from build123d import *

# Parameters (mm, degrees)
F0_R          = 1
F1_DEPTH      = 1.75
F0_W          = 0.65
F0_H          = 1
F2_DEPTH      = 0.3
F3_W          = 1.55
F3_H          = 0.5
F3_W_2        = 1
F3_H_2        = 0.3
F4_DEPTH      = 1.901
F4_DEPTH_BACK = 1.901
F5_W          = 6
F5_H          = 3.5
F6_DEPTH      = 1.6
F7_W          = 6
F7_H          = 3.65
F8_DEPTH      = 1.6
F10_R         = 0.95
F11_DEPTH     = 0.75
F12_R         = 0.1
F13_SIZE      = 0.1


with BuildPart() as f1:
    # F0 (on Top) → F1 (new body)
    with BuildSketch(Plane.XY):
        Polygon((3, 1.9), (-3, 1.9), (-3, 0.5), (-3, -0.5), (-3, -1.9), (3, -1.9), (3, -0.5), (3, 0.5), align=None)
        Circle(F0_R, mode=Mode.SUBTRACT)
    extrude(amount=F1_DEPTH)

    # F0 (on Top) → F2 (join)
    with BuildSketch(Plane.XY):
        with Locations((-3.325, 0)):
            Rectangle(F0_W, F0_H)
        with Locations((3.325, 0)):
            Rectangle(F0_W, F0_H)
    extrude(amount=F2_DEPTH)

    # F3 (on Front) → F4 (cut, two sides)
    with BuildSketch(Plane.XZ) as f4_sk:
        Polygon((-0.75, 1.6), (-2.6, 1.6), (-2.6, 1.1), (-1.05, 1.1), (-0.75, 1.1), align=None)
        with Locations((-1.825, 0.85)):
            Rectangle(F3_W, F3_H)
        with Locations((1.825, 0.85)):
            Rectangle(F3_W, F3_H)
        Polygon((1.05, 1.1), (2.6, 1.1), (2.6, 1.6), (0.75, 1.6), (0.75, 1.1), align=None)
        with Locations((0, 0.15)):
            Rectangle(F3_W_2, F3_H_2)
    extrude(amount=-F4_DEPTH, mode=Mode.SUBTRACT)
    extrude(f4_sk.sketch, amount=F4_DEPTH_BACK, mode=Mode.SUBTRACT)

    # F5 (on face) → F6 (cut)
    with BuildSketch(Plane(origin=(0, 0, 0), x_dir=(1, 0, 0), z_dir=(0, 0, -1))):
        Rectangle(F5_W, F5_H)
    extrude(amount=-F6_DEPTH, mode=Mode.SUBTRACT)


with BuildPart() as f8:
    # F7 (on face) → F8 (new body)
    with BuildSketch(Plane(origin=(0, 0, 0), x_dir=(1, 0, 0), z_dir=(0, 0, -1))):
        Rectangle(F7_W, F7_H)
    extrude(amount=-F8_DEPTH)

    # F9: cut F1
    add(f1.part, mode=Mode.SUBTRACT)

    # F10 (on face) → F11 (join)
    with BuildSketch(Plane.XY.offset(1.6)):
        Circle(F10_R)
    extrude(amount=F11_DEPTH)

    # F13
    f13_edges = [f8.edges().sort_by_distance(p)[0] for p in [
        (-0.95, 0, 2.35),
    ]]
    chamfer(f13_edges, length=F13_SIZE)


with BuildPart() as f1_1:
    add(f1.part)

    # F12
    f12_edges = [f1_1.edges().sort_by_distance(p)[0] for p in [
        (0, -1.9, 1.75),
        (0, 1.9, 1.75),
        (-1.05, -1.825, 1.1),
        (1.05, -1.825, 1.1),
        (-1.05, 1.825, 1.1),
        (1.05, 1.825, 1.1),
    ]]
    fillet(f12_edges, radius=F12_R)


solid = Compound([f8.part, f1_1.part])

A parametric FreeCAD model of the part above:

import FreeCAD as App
import Part
import Sketcher

V = App.Vector
Q = App.Units.Quantity


def edges_at(feature, points):
    """Names of the edges that pass closest to the given points."""
    edges = feature.Shape.Edges
    near = lambda p: min(range(len(edges)), key=lambda i: edges[i].distToShape(Part.Vertex(*p))[0])
    return sorted({f"Edge{near(p) + 1}" for p in points})

doc = App.newDocument("Part")
body = doc.addObject("PartDesign::Body", "Body")
body.AllowCompound = True

# Sketch on XY plane
sketch1 = body.newObject("Sketcher::SketchObject", "Sketch")
sketch1.AttachmentSupport = (doc.getObject("XY_Plane"), [""])
sketch1.MapMode = "FlatFace"
sketch1.addGeometry([
    Part.LineSegment(V(3, 1.9, 0), V(-3, 1.9, 0)),  # 0
    Part.LineSegment(V(-3, 1.9, 0), V(-3, -1.9, 0)),  # 1
    Part.LineSegment(V(-3, -1.9, 0), V(3, -1.9, 0)),  # 2
    Part.LineSegment(V(3, -1.9, 0), V(3, 1.9, 0)),  # 3
    Part.Circle(V(0, 0, 0), V(0, 0, 1), 1),  # 4
], False)
sketch1.addConstraint([
    Sketcher.Constraint("Coincident", 0, 2, 1, 1),
    Sketcher.Constraint("Coincident", 1, 2, 2, 1),
    Sketcher.Constraint("Coincident", 2, 2, 3, 1),
    Sketcher.Constraint("Coincident", 3, 2, 0, 1),
    Sketcher.Constraint("Horizontal", 0),
    Sketcher.Constraint("Vertical", 1),
    Sketcher.Constraint("Horizontal", 2),
    Sketcher.Constraint("Vertical", 3),
    Sketcher.Constraint("Coincident", 4, 3, -1, 1),
    Sketcher.Constraint("Symmetric", 0, 2, 2, 2, -1, 1),
    Sketcher.Constraint("Diameter", 4, Q("2 mm")),
    Sketcher.Constraint("DistanceX", 0, 2, 0, 1, Q("6 mm")),
    Sketcher.Constraint("DistanceY", 1, 2, 1, 1, Q("3.8 mm")),
])
pad1 = body.newObject("PartDesign::Pad", "Pad")
pad1.Profile = sketch1
pad1.Length = 1.75

# Sketch on XY plane
sketch2 = body.newObject("Sketcher::SketchObject", "Sketch001")
sketch2.AttachmentSupport = (doc.getObject("XY_Plane"), [""])
sketch2.MapMode = "FlatFace"
sketch2.addGeometry([
    Part.LineSegment(V(-3.65, 0.5, 0), V(-3.65, -0.5, 0)),  # 0
    Part.LineSegment(V(-3.65, -0.5, 0), V(-3, -0.5, 0)),  # 1
    Part.LineSegment(V(-3, -0.5, 0), V(-3, 0.5, 0)),  # 2
    Part.LineSegment(V(-3, 0.5, 0), V(-3.65, 0.5, 0)),  # 3
    Part.LineSegment(V(3, 0.5, 0), V(3, -0.5, 0)),  # 4
    Part.LineSegment(V(3, -0.5, 0), V(3.65, -0.5, 0)),  # 5
    Part.LineSegment(V(3.65, -0.5, 0), V(3.65, 0.5, 0)),  # 6
    Part.LineSegment(V(3.65, 0.5, 0), V(3, 0.5, 0)),  # 7
], False)
sketch2.addConstraint([
    Sketcher.Constraint("Coincident", 0, 2, 1, 1),
    Sketcher.Constraint("Coincident", 1, 2, 2, 1),
    Sketcher.Constraint("Coincident", 2, 2, 3, 1),
    Sketcher.Constraint("Coincident", 3, 2, 0, 1),
    Sketcher.Constraint("Coincident", 4, 2, 5, 1),
    Sketcher.Constraint("Coincident", 5, 2, 6, 1),
    Sketcher.Constraint("Coincident", 6, 2, 7, 1),
    Sketcher.Constraint("Coincident", 7, 2, 4, 1),
    Sketcher.Constraint("Vertical", 0),
    Sketcher.Constraint("Horizontal", 1),
    Sketcher.Constraint("Vertical", 2),
    Sketcher.Constraint("Horizontal", 3),
    Sketcher.Constraint("Vertical", 4),
    Sketcher.Constraint("Horizontal", 5),
    Sketcher.Constraint("Vertical", 6),
    Sketcher.Constraint("Horizontal", 7),
    Sketcher.Constraint("Symmetric", 2, 2, 4, 2, -1, 1),
    Sketcher.Constraint("Symmetric", 0, 2, 6, 2, -1, 1),
    Sketcher.Constraint("Horizontal", 1, 2, 4, 2),
    Sketcher.Constraint("DistanceY", 0, 2, 0, 1, Q("1 mm")),
    Sketcher.Constraint("DistanceX", 1, 2, -1, 1, Q("3 mm")),
    Sketcher.Constraint("DistanceX", 1, 1, 1, 2, Q("0.65 mm")),
])
pad2 = body.newObject("PartDesign::Pad", "Pad001")
pad2.Profile = sketch2
pad2.Length = 0.3

# Sketch on XZ plane
sketch3 = body.newObject("Sketcher::SketchObject", "Sketch002")
sketch3.AttachmentSupport = (doc.getObject("XZ_Plane"), [""])
sketch3.MapMode = "FlatFace"
sketch3.addGeometry([
    Part.LineSegment(V(-0.75, 1.6, 0), V(-2.6, 1.6, 0)),  # 0
    Part.LineSegment(V(-2.6, 1.6, 0), V(-2.6, 0.6, 0)),  # 1
    Part.LineSegment(V(-2.6, 0.6, 0), V(-1.05, 0.6, 0)),  # 2
    Part.LineSegment(V(-1.05, 0.6, 0), V(-1.05, 1.1, 0)),  # 3
    Part.LineSegment(V(-1.05, 1.1, 0), V(-0.75, 1.1, 0)),  # 4
    Part.LineSegment(V(-0.75, 1.1, 0), V(-0.75, 1.6, 0)),  # 5
    Part.LineSegment(V(1.05, 1.1, 0), V(1.05, 0.6, 0)),  # 6
    Part.LineSegment(V(1.05, 0.6, 0), V(2.6, 0.6, 0)),  # 7
    Part.LineSegment(V(2.6, 0.6, 0), V(2.6, 1.6, 0)),  # 8
    Part.LineSegment(V(2.6, 1.6, 0), V(0.75, 1.6, 0)),  # 9
    Part.LineSegment(V(0.75, 1.6, 0), V(0.75, 1.1, 0)),  # 10
    Part.LineSegment(V(0.75, 1.1, 0), V(1.05, 1.1, 0)),  # 11
    Part.LineSegment(V(-0.5, 0.3, 0), V(-0.5, 0, 0)),  # 12
    Part.LineSegment(V(-0.5, 0, 0), V(0.5, 0, 0)),  # 13
    Part.LineSegment(V(0.5, 0, 0), V(0.5, 0.3, 0)),  # 14
    Part.LineSegment(V(0.5, 0.3, 0), V(-0.5, 0.3, 0)),  # 15
], False)
sketch3.addConstraint([
    Sketcher.Constraint("Coincident", 0, 2, 1, 1),
    Sketcher.Constraint("Coincident", 1, 2, 2, 1),
    Sketcher.Constraint("Coincident", 2, 2, 3, 1),
    Sketcher.Constraint("Coincident", 3, 2, 4, 1),
    Sketcher.Constraint("Coincident", 4, 2, 5, 1),
    Sketcher.Constraint("Coincident", 5, 2, 0, 1),
    Sketcher.Constraint("Coincident", 6, 2, 7, 1),
    Sketcher.Constraint("Coincident", 7, 2, 8, 1),
    Sketcher.Constraint("Coincident", 8, 2, 9, 1),
    Sketcher.Constraint("Coincident", 9, 2, 10, 1),
    Sketcher.Constraint("Coincident", 10, 2, 11, 1),
    Sketcher.Constraint("Coincident", 11, 2, 6, 1),
    Sketcher.Constraint("Coincident", 12, 2, 13, 1),
    Sketcher.Constraint("Coincident", 13, 2, 14, 1),
    Sketcher.Constraint("Coincident", 14, 2, 15, 1),
    Sketcher.Constraint("Coincident", 15, 2, 12, 1),
    Sketcher.Constraint("Horizontal", 0),
    Sketcher.Constraint("Vertical", 1),
    Sketcher.Constraint("Horizontal", 2),
    Sketcher.Constraint("Vertical", 3),
    Sketcher.Constraint("Horizontal", 4),
    Sketcher.Constraint("Vertical", 5),
    Sketcher.Constraint("Vertical", 6),
    Sketcher.Constraint("Horizontal", 7),
    Sketcher.Constraint("Vertical", 8),
    Sketcher.Constraint("Horizontal", 9),
    Sketcher.Constraint("Vertical", 10),
    Sketcher.Constraint("Horizontal", 11),
    Sketcher.Constraint("Vertical", 12),
    Sketcher.Constraint("Horizontal", 13),
    Sketcher.Constraint("Vertical", 14),
    Sketcher.Constraint("Horizontal", 15),
    Sketcher.Constraint("Symmetric", 12, 2, 13, 2, -1, 1),
    Sketcher.Constraint("Symmetric", 2, 2, 6, 2, -2),
    Sketcher.Constraint("Symmetric", 0, 2, 8, 2, -2),
    Sketcher.Constraint("Symmetric", 4, 2, 10, 2, -2),
    Sketcher.Constraint("Equal", 15, 1),
    Sketcher.Constraint("Equal", 3, 5),
    Sketcher.Constraint("Equal", 11, 12),
    Sketcher.Constraint("DistanceX", 13, 1, 13, 2, Q("1 mm")),
    Sketcher.Constraint("DistanceX", 4, 1, 4, 2, Q("0.3 mm")),
    Sketcher.Constraint("DistanceX", 0, 2, 0, 1, Q("1.85 mm")),
    Sketcher.Constraint("DistanceX", 0, 2, -1, 1, Q("2.6 mm")),
    Sketcher.Constraint("DistanceY", -1, 1, 0, 2, Q("1.6 mm")),
])
pocket1 = body.newObject("PartDesign::Pocket", "Pocket")
pocket1.Profile = sketch3
pocket1.Type = "ThroughAll"
pocket1.Midplane = True

# Sketch on XY plane
sketch4 = body.newObject("Sketcher::SketchObject", "Sketch003")
sketch4.AttachmentSupport = (doc.getObject("XY_Plane"), [""])
sketch4.MapMode = "FlatFace"
sketch4.addGeometry([
    Part.LineSegment(V(-3, -1.75, 0), V(-3, 1.75, 0)),
    Part.LineSegment(V(-3, 1.75, 0), V(3, 1.75, 0)),
    Part.LineSegment(V(3, 1.75, 0), V(3, -1.75, 0)),
    Part.LineSegment(V(3, -1.75, 0), V(-3, -1.75, 0)),
], False)
sketch4.addConstraint([
    Sketcher.Constraint("Coincident", 0, 2, 1, 1),
    Sketcher.Constraint("Coincident", 1, 2, 2, 1),
    Sketcher.Constraint("Coincident", 2, 2, 3, 1),
    Sketcher.Constraint("Coincident", 3, 2, 0, 1),
    Sketcher.Constraint("Vertical", 0),
    Sketcher.Constraint("Horizontal", 1),
    Sketcher.Constraint("Vertical", 2),
    Sketcher.Constraint("Horizontal", 3),
    Sketcher.Constraint("Symmetric", 0, 2, 2, 2, -1, 1),
    Sketcher.Constraint("DistanceX", 1, 1, 1, 2, Q("6 mm")),
    Sketcher.Constraint("DistanceY", 0, 1, 0, 2, Q("3.5 mm")),
])
pocket2 = body.newObject("PartDesign::Pocket", "Pocket001")
pocket2.Profile = sketch4
pocket2.Length = 1.6
pocket2.Reversed = True
body2 = doc.addObject("PartDesign::Body", "Body001")

# Sketch on XY plane
sketch5 = body2.newObject("Sketcher::SketchObject", "Sketch004")
sketch5.AttachmentSupport = (doc.getObject("XY_Plane001"), [""])
sketch5.MapMode = "FlatFace"
sketch5.addGeometry([
    Part.LineSegment(V(-3, -1.825, 0), V(-3, 1.825, 0)),
    Part.LineSegment(V(-3, 1.825, 0), V(3, 1.825, 0)),
    Part.LineSegment(V(3, 1.825, 0), V(3, -1.825, 0)),
    Part.LineSegment(V(3, -1.825, 0), V(-3, -1.825, 0)),
], False)
sketch5.addConstraint([
    Sketcher.Constraint("Coincident", 0, 2, 1, 1),
    Sketcher.Constraint("Coincident", 1, 2, 2, 1),
    Sketcher.Constraint("Coincident", 2, 2, 3, 1),
    Sketcher.Constraint("Coincident", 3, 2, 0, 1),
    Sketcher.Constraint("Vertical", 0),
    Sketcher.Constraint("Horizontal", 1),
    Sketcher.Constraint("Vertical", 2),
    Sketcher.Constraint("Horizontal", 3),
    Sketcher.Constraint("Symmetric", 0, 2, 2, 2, -1, 1),
    Sketcher.Constraint("DistanceX", 1, 1, 1, 2, Q("6 mm")),
    Sketcher.Constraint("DistanceY", 0, 1, 0, 2, Q("3.65 mm")),
])
pad3 = body2.newObject("PartDesign::Pad", "Pad002")
pad3.Profile = sketch5
pad3.Length = 1.6
doc.recompute()

body3 = doc.addObject("PartDesign::Body", "Body002")
body3.BaseFeature = body
boolean = body2.newObject("PartDesign::Boolean", "Boolean")
boolean.Type = "Cut"
boolean.addObjects([body3])
doc.recompute()

# Sketch on XY plane
sketch6 = body2.newObject("Sketcher::SketchObject", "Sketch005")
sketch6.AttachmentSupport = (doc.getObject("XY_Plane001"), [""])
sketch6.MapMode = "FlatFace"
sketch6.AttachmentOffset = App.Placement(V(0, 0, 1.6), App.Rotation())
sketch6.addGeometry(Part.Circle(V(0, 0, 0), V(0, 0, 1), 0.95), False)
sketch6.addConstraint([
    Sketcher.Constraint("Coincident", 0, 3, -1, 1),
    Sketcher.Constraint("Diameter", 0, Q("1.9 mm")),
])
pad4 = body2.newObject("PartDesign::Pad", "Pad003")
pad4.Profile = sketch6
pad4.Length = 0.75
doc.recompute()

chamfer = body2.newObject("PartDesign::Chamfer", "Chamfer")
chamfer.Base = (pad4, edges_at(pad4, [(-0.95, 0, 2.35)]))
chamfer.Size = 0.1
body.AllowCompound = True
doc.recompute()

fillet = body.newObject("PartDesign::Fillet", "Fillet")
fillet.Base = (pocket2, edges_at(pocket2, [
    (0, -1.9, 1.75),
    (0, 1.9, 1.75),
    (-1.05, -1.825, 1.1),
    (1.05, -1.825, 1.1),
    (-1.05, 1.825, 1.1),
    (1.05, 1.825, 1.1),
]))
fillet.Radius = 0.1

doc.recompute()
